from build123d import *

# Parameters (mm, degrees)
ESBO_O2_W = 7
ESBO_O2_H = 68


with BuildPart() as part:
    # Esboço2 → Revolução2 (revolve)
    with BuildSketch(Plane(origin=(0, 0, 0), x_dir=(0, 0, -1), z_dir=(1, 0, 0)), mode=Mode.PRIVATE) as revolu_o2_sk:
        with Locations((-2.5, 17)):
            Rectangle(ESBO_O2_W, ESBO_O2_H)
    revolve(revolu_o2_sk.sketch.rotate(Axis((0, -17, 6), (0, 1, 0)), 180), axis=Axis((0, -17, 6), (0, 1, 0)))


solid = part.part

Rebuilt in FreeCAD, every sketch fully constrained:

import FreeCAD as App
import Part
import Sketcher

V = App.Vector

doc = App.newDocument("Part")
body = doc.addObject("PartDesign::Body", "Body")

sketch1 = body.newObject("Sketcher::SketchObject", "Sketch")
sketch1.AttachmentSupport = (doc.getObject("YZ_Plane"), [""])
sketch1.MapMode = "FlatFace"
sketch1.addGeometry(Part.LineSegment(V(51, 6, 0), V(-17, 6, 0)), False)
sketch1.addGeometry(Part.LineSegment(V(-17, 6, 0), V(-17, -1, 0)), False)
sketch1.addGeometry(Part.LineSegment(V(-17, -1, 0), V(51, -1, 0)), False)
sketch1.addGeometry(Part.LineSegment(V(51, -1, 0), V(51, 6, 0)), False)
sketch1.addGeometry(Part.LineSegment(V(-17, 6, 0), V(51, 6, 0)), True)
sketch1.addConstraint(Sketcher.Constraint("Coincident", 0, 2, 1, 1))
sketch1.addConstraint(Sketcher.Constraint("Coincident", 1, 2, 2, 1))
sketch1.addConstraint(Sketcher.Constraint("Coincident", 2, 2, 3, 1))
sketch1.addConstraint(Sketcher.Constraint("Coincident", 3, 2, 0, 1))
sketch1.addConstraint(Sketcher.Constraint("Horizontal", 0))
sketch1.addConstraint(Sketcher.Constraint("Vertical", 1))
sketch1.addConstraint(Sketcher.Constraint("Horizontal", 2))
sketch1.addConstraint(Sketcher.Constraint("Vertical", 3))
sketch1.addConstraint(Sketcher.Constraint("Horizontal", 4))
sketch1.addConstraint(Sketcher.Constraint("Coincident", 4, 1, 0, 2))
sketch1.addConstraint(Sketcher.Constraint("Vertical", 2, 2, 4, 2))
sketch1.addConstraint(Sketcher.Constraint("DistanceX", 0, 2, 0, 1, 68.0))
sketch1.addConstraint(Sketcher.Constraint("DistanceY", 1, 2, 1, 1, 7.0))
sketch1.addConstraint(Sketcher.Constraint("DistanceX", 0, 2, -1, 1, 17.0))
sketch1.addConstraint(Sketcher.Constraint("DistanceY", -1, 1, 0, 2, 6.0))
revolution = body.newObject("PartDesign::Revolution", "Revolution")
revolution.Profile = sketch1
revolution.ReferenceAxis = (sketch1, ["Axis0"])
revolution.Angle = 360

doc.recompute()
